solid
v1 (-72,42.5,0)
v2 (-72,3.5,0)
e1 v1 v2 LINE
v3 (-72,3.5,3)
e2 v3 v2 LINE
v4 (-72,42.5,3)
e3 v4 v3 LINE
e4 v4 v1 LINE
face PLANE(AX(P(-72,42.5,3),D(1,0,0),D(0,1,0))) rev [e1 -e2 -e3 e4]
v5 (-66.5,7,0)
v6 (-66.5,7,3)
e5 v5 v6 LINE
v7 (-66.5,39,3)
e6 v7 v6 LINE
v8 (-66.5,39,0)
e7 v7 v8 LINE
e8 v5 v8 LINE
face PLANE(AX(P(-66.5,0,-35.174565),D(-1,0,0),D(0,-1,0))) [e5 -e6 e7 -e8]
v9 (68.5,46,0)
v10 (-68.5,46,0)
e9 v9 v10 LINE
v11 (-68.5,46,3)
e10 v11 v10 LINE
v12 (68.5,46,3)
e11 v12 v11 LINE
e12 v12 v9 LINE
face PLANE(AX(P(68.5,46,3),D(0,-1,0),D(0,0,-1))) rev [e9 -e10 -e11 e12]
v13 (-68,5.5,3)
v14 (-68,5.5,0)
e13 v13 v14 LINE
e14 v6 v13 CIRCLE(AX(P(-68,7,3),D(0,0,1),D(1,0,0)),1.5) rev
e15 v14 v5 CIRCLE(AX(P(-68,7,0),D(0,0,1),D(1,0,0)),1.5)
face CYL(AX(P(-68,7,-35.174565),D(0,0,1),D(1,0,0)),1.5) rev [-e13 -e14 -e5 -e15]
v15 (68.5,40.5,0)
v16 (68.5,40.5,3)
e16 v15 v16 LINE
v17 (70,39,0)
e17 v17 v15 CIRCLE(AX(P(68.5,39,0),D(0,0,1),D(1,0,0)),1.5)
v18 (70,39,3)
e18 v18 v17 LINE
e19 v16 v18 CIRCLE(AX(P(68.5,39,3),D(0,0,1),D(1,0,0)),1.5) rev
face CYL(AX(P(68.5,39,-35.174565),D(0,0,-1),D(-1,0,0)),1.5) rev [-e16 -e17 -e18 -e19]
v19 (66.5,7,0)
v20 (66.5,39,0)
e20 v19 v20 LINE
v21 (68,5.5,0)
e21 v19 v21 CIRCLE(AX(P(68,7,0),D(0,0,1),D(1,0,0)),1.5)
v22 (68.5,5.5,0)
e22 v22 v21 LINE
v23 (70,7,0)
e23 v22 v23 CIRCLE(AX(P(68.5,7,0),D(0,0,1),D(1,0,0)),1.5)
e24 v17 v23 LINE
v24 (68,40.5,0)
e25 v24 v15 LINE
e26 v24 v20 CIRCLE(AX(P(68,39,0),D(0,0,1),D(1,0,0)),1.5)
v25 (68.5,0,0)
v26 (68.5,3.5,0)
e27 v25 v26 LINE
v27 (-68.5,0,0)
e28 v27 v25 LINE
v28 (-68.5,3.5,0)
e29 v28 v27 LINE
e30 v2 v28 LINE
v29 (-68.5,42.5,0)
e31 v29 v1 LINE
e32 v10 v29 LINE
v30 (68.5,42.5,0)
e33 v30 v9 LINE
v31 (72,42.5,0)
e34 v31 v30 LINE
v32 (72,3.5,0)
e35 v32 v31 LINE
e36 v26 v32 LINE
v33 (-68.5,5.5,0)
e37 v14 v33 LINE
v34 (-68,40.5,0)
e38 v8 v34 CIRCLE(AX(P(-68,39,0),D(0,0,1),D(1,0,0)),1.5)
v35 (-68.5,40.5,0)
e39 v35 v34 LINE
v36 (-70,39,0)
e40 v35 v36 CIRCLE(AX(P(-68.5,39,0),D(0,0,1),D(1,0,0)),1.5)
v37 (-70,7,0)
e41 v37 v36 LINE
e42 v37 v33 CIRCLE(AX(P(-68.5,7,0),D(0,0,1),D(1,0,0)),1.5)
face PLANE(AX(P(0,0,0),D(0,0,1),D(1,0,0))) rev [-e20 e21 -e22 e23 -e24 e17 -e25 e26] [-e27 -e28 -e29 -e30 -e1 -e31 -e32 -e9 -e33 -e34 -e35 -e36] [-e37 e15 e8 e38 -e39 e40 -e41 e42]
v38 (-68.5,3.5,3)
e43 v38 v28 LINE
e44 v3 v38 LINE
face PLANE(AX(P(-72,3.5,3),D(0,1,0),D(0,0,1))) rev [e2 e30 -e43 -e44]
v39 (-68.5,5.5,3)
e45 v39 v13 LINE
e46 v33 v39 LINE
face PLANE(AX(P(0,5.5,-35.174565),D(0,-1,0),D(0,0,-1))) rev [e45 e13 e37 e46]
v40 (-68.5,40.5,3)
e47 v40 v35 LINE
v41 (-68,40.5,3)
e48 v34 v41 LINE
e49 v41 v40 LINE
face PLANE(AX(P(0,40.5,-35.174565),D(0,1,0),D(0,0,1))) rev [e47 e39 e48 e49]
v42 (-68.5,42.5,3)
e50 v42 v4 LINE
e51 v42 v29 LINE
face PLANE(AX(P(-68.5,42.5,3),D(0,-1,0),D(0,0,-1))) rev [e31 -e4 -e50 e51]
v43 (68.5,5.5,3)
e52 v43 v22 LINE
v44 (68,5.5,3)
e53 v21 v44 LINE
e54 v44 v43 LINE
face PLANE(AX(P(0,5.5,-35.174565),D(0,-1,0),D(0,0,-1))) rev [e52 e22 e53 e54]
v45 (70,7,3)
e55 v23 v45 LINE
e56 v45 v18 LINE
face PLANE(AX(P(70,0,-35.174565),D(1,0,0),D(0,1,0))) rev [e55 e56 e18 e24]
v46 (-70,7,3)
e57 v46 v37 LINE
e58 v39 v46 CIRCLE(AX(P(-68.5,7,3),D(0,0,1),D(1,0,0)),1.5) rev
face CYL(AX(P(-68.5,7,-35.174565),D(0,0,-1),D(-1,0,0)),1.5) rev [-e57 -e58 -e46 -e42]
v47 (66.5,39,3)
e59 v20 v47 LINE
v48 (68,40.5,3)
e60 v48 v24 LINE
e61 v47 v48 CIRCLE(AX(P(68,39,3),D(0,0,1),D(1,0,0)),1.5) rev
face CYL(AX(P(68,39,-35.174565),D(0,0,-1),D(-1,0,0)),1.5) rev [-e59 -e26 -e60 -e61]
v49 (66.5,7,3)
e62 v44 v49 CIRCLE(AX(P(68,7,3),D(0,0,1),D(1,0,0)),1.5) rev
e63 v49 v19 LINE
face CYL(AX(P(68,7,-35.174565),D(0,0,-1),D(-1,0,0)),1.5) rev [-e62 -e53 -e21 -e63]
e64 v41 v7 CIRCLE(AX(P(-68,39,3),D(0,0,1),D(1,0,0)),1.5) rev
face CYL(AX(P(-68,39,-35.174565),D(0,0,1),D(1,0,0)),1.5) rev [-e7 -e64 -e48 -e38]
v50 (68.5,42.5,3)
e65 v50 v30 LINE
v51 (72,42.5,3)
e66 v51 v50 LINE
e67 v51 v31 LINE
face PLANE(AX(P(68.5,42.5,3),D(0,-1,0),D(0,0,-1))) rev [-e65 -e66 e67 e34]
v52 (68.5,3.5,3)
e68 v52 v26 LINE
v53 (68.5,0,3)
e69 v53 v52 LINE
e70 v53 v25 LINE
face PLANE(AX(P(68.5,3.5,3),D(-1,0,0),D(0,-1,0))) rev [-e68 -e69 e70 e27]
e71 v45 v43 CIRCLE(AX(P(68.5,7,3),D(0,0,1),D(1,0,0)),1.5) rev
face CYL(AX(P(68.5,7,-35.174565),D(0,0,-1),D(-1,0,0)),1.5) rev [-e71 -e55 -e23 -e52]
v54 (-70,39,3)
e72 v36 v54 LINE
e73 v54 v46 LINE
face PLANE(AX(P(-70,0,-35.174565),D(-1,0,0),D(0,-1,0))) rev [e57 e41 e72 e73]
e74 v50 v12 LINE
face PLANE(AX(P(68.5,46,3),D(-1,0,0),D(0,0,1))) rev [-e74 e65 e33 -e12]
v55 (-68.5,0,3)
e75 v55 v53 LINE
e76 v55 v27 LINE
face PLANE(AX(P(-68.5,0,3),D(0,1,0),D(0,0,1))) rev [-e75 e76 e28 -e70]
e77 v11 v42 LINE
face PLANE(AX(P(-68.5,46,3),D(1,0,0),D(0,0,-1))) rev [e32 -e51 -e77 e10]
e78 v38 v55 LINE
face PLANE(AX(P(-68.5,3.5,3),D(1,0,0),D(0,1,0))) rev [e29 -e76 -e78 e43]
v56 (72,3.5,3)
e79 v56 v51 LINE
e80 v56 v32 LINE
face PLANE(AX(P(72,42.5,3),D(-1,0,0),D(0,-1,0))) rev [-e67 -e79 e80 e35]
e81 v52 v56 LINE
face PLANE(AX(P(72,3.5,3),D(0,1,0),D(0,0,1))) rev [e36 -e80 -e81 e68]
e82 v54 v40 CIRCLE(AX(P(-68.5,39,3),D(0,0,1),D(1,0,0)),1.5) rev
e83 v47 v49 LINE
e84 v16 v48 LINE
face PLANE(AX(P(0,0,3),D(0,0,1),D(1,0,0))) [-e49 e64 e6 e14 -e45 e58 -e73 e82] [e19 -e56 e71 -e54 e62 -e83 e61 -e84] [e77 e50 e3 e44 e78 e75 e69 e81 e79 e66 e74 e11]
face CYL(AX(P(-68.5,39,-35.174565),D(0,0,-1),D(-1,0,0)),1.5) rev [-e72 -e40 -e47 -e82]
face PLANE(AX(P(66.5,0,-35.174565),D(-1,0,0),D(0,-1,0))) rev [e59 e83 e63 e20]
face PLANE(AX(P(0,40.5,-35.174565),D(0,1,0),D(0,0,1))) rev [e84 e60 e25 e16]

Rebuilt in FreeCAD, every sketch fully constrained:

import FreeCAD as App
import Part
import Sketcher
Q = App.Units.Quantity


def edges_at(feature, points):
    """Names of the edges that pass closest to the given points."""
    edges = feature.Shape.Edges
    near = lambda p: min(range(len(edges)), key=lambda i: edges[i].distToShape(Part.Vertex(*p))[0])
    return sorted({f"Edge{near(p) + 1}" for p in points})

doc = App.newDocument("Part")
body = doc.addObject("PartDesign::Body", "Body")

# Sketch on XY plane
sketch1 = body.newObject("Sketcher::SketchObject", "Sketch")
sketch1.AttachmentSupport = (doc.getObject("XY_Plane"), [""])
sketch1.MapMode = "FlatFace"
sketch1.addGeometry([
    Part.LineSegment(App.Vector(68.5, 46, 0), App.Vector(-68.5, 46, 0)),  # 0
    Part.LineSegment(App.Vector(-68.5, 46, 0), App.Vector(-68.5, 42.5, 0)),  # 1
    Part.LineSegment(App.Vector(-68.5, 42.5, 0), App.Vector(-72, 42.5, 0)),  # 2
    Part.LineSegment(App.Vector(-72, 42.5, 0), App.Vector(-72, 3.5, 0)),  # 3
    Part.LineSegment(App.Vector(-72, 3.5, 0), App.Vector(-68.5, 3.5, 0)),  # 4
    Part.LineSegment(App.Vector(-68.5, 3.5, 0), App.Vector(-68.5, 0, 0)),  # 5
    Part.LineSegment(App.Vector(-68.5, 0, 0), App.Vector(68.5, 0, 0)),  # 6
    Part.LineSegment(App.Vector(68.5, 0, 0), App.Vector(68.5, 3.5, 0)),  # 7
    Part.LineSegment(App.Vector(68.5, 3.5, 0), App.Vector(72, 3.5, 0)),  # 8
    Part.LineSegment(App.Vector(72, 3.5, 0), App.Vector(72, 42.5, 0)),  # 9
    Part.LineSegment(App.Vector(72, 42.5, 0), App.Vector(68.5, 42.5, 0)),  # 10
    Part.LineSegment(App.Vector(68.5, 42.5, 0), App.Vector(68.5, 46, 0)),  # 11
], False)
sketch1.addConstraint([
    Sketcher.Constraint("Coincident", 0, 2, 1, 1),
    Sketcher.Constraint("Coincident", 1, 2, 2, 1),
    Sketcher.Constraint("Coincident", 2, 2, 3, 1),
    Sketcher.Constraint("Coincident", 3, 2, 4, 1),
    Sketcher.Constraint("Coincident", 4, 2, 5, 1),
    Sketcher.Constraint("Coincident", 5, 2, 6, 1),
    Sketcher.Constraint("Coincident", 6, 2, 7, 1),
    Sketcher.Constraint("Coincident", 7, 2, 8, 1),
    Sketcher.Constraint("Coincident", 8, 2, 9, 1),
    Sketcher.Constraint("Coincident", 9, 2, 10, 1),
    Sketcher.Constraint("Coincident", 10, 2, 11, 1),
    Sketcher.Constraint("Coincident", 11, 2, 0, 1),
    Sketcher.Constraint("Horizontal", 0),
    Sketcher.Constraint("Vertical", 1),
    Sketcher.Constraint("Horizontal", 2),
    Sketcher.Constraint("Vertical", 3),
    Sketcher.Constraint("Horizontal", 4),
    Sketcher.Constraint("Vertical", 5),
    Sketcher.Constraint("Horizontal", 6),
    Sketcher.Constraint("Vertical", 7),
    Sketcher.Constraint("Horizontal", 8),
    Sketcher.Constraint("Vertical", 9),
    Sketcher.Constraint("Horizontal", 10),
    Sketcher.Constraint("Vertical", 11),
    Sketcher.Constraint("Symmetric", 5, 2, 6, 2, -1, 1),
    Sketcher.Constraint("Symmetric", 3, 2, 8, 2, -2),
    Sketcher.Constraint("Symmetric", 1, 2, 10, 2, -2),
    Sketcher.Constraint("Vertical", 1, 2, 4, 2),
    Sketcher.Constraint("Equal", 10, 1),
    Sketcher.Constraint("Equal", 1, 5),
    Sketcher.Constraint("DistanceX", 0, 2, 0, 1, Q("137 mm")),
    Sketcher.Constraint("DistanceY", 3, 2, 3, 1, Q("39 mm")),
    Sketcher.Constraint("DistanceX", 2, 2, 2, 1, Q("3.5 mm")),
])
pad1 = body.newObject("PartDesign::Pad", "Pad")
pad1.Profile = sketch1
pad1.Length = 3

# Sketch on XY plane
sketch2 = body.newObject("Sketcher::SketchObject", "Sketch001")
sketch2.AttachmentSupport = (doc.getObject("XY_Plane"), [""])
sketch2.MapMode = "FlatFace"
sketch2.AttachmentOffset = App.Placement(App.Vector(0, 0, 3), App.Rotation())
sketch2.addGeometry([
    Part.LineSegment(App.Vector(-70, 40.5, 0), App.Vector(-70, 5.5, 0)),  # 0
    Part.LineSegment(App.Vector(-70, 5.5, 0), App.Vector(-66.5, 5.5, 0)),  # 1
    Part.LineSegment(App.Vector(-66.5, 5.5, 0), App.Vector(-66.5, 40.5, 0)),  # 2
    Part.LineSegment(App.Vector(-66.5, 40.5, 0), App.Vector(-70, 40.5, 0)),  # 3
    Part.LineSegment(App.Vector(66.5, 40.5, 0), App.Vector(66.5, 5.5, 0)),  # 4
    Part.LineSegment(App.Vector(66.5, 5.5, 0), App.Vector(70, 5.5, 0)),  # 5
    Part.LineSegment(App.Vector(70, 5.5, 0), App.Vector(70, 40.5, 0)),  # 6
    Part.LineSegment(App.Vector(70, 40.5, 0), App.Vector(66.5, 40.5, 0)),  # 7
], False)
sketch2.addConstraint([
    Sketcher.Constraint("Coincident", 0, 2, 1, 1),
    Sketcher.Constraint("Coincident", 1, 2, 2, 1),
    Sketcher.Constraint("Coincident", 2, 2, 3, 1),
    Sketcher.Constraint("Coincident", 3, 2, 0, 1),
    Sketcher.Constraint("Coincident", 4, 2, 5, 1),
    Sketcher.Constraint("Coincident", 5, 2, 6, 1),
    Sketcher.Constraint("Coincident", 6, 2, 7, 1),
    Sketcher.Constraint("Coincident", 7, 2, 4, 1),
    Sketcher.Constraint("Vertical", 0),
    Sketcher.Constraint("Horizontal", 1),
    Sketcher.Constraint("Vertical", 2),
    Sketcher.Constraint("Horizontal", 3),
    Sketcher.Constraint("Vertical", 4),
    Sketcher.Constraint("Horizontal", 5),
    Sketcher.Constraint("Vertical", 6),
    Sketcher.Constraint("Horizontal", 7),
    Sketcher.Constraint("Symmetric", 1, 2, 4, 2, -2),
    Sketcher.Constraint("Symmetric", 3, 2, 6, 2, -2),
    Sketcher.Constraint("DistanceY", 0, 2, 0, 1, Q("35 mm")),
    Sketcher.Constraint("DistanceX", 1, 1, 1, 2, Q("3.5 mm")),
    Sketcher.Constraint("DistanceX", 0, 2, -1, 1, Q("70 mm")),
    Sketcher.Constraint("DistanceY", -1, 1, 0, 2, Q("5.5 mm")),
])
pocket1 = body.newObject("PartDesign::Pocket", "Pocket")
pocket1.Profile = sketch2
pocket1.Length = 3
doc.recompute()

fillet = body.newObject("PartDesign::Fillet", "Fillet")
fillet.Base = (pocket1, edges_at(pocket1, [
    (-70, 5.5, 1.5),
    (-70, 40.5, 1.5),
    (-66.5, 40.5, 1.5),
    (-66.5, 5.5, 1.5),
    (70, 40.5, 1.5),
    (70, 5.5, 1.5),
    (66.5, 5.5, 1.5),
    (66.5, 40.5, 1.5),
]))
fillet.Radius = 1.5

doc.recompute()
